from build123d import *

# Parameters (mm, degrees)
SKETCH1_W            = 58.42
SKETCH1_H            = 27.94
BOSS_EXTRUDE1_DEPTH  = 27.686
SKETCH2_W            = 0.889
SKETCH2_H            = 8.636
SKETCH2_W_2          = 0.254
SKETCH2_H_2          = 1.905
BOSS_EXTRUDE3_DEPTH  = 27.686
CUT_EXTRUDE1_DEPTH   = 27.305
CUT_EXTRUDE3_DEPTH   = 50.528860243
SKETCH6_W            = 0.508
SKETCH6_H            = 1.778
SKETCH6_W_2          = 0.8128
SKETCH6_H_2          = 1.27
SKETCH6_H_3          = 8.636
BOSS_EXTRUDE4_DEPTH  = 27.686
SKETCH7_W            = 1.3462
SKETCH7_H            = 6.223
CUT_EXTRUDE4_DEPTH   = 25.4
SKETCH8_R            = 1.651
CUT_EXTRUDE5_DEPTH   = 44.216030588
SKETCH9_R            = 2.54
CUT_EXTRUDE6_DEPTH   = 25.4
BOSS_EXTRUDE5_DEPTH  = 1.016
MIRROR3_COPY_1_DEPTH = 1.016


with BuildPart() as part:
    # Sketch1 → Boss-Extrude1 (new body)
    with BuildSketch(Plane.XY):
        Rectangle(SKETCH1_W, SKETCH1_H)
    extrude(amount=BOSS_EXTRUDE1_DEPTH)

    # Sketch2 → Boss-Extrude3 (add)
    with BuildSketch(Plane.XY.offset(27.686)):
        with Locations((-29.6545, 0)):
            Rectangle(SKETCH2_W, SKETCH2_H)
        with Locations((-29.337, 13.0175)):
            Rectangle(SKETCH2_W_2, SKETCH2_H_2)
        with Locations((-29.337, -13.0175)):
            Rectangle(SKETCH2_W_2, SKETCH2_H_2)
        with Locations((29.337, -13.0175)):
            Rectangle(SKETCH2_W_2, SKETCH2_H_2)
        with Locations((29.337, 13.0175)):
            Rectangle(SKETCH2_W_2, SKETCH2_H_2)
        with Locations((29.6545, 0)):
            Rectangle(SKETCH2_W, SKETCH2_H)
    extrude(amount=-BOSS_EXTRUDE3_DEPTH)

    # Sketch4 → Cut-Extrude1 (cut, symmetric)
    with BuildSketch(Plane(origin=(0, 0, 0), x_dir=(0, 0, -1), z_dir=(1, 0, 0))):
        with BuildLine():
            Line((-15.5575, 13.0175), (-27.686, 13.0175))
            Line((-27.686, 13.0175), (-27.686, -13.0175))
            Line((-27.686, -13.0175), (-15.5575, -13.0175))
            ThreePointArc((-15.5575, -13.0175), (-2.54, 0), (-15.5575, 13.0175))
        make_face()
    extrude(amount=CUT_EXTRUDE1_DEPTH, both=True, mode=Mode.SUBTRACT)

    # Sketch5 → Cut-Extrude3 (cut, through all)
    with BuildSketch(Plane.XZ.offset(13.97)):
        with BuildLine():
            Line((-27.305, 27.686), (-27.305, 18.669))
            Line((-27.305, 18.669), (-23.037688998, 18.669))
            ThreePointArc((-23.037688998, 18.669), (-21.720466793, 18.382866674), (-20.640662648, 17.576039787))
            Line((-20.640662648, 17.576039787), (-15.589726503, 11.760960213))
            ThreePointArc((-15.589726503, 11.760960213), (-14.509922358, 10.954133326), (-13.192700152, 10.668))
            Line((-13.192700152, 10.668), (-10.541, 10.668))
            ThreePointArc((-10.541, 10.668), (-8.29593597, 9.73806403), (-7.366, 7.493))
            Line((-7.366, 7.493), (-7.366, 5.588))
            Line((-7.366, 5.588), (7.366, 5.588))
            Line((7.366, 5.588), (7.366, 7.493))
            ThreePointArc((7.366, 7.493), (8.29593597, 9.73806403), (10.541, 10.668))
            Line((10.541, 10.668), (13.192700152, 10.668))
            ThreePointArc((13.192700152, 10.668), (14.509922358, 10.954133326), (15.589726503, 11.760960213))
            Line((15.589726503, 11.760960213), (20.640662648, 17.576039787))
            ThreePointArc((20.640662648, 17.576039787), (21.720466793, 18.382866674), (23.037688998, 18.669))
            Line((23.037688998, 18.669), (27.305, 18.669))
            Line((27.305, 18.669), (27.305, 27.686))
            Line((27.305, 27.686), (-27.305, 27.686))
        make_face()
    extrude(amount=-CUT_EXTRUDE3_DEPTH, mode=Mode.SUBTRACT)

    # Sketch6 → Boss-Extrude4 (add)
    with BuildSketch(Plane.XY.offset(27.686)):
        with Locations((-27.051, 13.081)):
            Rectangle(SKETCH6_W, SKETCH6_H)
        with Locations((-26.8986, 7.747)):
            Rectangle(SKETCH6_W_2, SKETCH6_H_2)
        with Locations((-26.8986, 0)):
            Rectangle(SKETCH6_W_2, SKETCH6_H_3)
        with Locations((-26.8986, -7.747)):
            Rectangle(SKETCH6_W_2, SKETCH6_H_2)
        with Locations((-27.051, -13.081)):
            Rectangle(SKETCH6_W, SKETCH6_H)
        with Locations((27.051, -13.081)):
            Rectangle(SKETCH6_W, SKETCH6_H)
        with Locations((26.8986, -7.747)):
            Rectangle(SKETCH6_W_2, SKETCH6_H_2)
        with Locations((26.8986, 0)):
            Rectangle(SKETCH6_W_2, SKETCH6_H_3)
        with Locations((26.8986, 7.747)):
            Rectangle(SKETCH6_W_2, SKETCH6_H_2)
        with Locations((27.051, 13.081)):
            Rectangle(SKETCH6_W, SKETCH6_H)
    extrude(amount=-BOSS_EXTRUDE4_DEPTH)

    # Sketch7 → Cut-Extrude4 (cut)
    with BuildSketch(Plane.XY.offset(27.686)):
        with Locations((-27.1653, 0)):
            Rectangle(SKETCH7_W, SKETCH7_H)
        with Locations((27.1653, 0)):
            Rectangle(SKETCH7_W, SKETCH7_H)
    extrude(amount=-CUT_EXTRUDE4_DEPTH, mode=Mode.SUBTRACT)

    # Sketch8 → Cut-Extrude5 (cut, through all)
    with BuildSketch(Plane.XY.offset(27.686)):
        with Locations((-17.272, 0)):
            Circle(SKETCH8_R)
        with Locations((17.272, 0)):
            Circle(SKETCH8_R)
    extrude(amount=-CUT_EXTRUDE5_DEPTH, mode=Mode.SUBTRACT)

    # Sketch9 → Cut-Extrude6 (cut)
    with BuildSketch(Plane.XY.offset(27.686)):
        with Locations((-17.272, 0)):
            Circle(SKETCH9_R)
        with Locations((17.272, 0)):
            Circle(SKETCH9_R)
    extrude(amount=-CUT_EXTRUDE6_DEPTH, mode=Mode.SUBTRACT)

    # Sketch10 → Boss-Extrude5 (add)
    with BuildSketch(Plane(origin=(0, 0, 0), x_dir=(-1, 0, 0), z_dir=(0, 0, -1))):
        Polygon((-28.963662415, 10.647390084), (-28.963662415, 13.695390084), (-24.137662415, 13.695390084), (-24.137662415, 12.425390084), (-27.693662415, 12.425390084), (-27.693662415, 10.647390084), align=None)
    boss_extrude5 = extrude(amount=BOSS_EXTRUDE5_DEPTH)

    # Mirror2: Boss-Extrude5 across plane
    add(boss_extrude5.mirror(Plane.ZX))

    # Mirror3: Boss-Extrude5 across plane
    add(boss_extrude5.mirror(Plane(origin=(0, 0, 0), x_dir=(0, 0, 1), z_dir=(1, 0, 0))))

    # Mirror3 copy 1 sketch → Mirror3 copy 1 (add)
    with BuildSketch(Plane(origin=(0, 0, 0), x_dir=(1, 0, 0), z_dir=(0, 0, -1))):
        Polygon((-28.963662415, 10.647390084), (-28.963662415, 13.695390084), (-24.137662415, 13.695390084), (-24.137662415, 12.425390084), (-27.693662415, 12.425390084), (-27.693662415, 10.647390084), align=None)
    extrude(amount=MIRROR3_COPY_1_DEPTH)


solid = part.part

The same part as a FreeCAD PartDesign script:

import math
import FreeCAD as App
import Part
import Sketcher
from FreeCAD import Vector
Q = App.Units.Quantity

doc = App.newDocument("Part")
params = doc.addObject("Spreadsheet::Sheet", "Params")
for row, (alias, value) in enumerate([
    ("sketch1_width", "2.3 in"),
    ("sketch1_height", "1.1 in"),
    ("pad1_length", "1.09 in"),
    ("sketch2_width", "0.01 in"),
    ("sketch2_height", "0.34 in"),
    ("sketch2_width2", "0.035 in"),
    ("sketch2_height2", "0.075 in"),
    ("pad2_length", "1.09 in"),
    ("pocket1_length", "2.15 in"),
    ("sketch4_radius", "0.125 in"),
    ("sketch4_width", "0.58 in"),
    ("sketch4_width2", "2.15 in"),
    ("sketch4_height", "0.355 in"),
    ("sketch5_width", "0.02 in"),
    ("sketch5_height", "0.07 in"),
    ("sketch5_height2", "0.05 in"),
    ("sketch5_height3", "0.34 in"),
    ("sketch5_width2", "0.032 in"),
    ("pad3_length", "1.09 in"),
    ("sketch6_width", "0.053 in"),
    ("sketch6_height", "0.245 in"),
    ("pocket3_length", "1 in"),
    ("sketch7_diameter", "0.13 in"),
    ("sketch8_diameter", "0.2 in"),
    ("pocket5_length", "1 in"),
    ("sketch9_width", "0.05 in"),
    ("sketch9_width2", "0.14 in"),
    ("sketch9_height", "0.12 in"),
    ("pad4_length", "0.04 in"),
    ("sketch10_width", "0.05 in"),
    ("sketch10_width2", "0.14 in"),
    ("sketch10_height", "0.12 in"),
    ("pad5_length", "0.04 in"),
], start=1):
    params.set(f"A{row}", alias)
    params.set(f"B{row}", "=" + value)
    params.setAlias(f"B{row}", alias)

body = doc.addObject("PartDesign::Body", "Body")

# Sketch on XY plane
sketch1 = body.newObject("Sketcher::SketchObject", "Sketch")
sketch1.AttachmentSupport = (doc.getObject("XY_Plane"), [""])
sketch1.MapMode = "FlatFace"
sketch1.addGeometry(Part.LineSegment(Vector(-29.21, 13.97, 0), Vector(-29.21, -13.97, 0)), False)
sketch1.addGeometry(Part.LineSegment(Vector(-29.21, -13.97, 0), Vector(29.21, -13.97, 0)), False)
sketch1.addGeometry(Part.LineSegment(Vector(29.21, -13.97, 0), Vector(29.21, 13.97, 0)), False)
sketch1.addGeometry(Part.LineSegment(Vector(29.21, 13.97, 0), Vector(-29.21, 13.97, 0)), False)
sketch1.addConstraint(Sketcher.Constraint("Coincident", 0, 2, 1, 1))
sketch1.addConstraint(Sketcher.Constraint("Coincident", 1, 2, 2, 1))
sketch1.addConstraint(Sketcher.Constraint("Coincident", 2, 2, 3, 1))
sketch1.addConstraint(Sketcher.Constraint("Coincident", 3, 2, 0, 1))
sketch1.addConstraint(Sketcher.Constraint("Vertical", 0))
sketch1.addConstraint(Sketcher.Constraint("Horizontal", 1))
sketch1.addConstraint(Sketcher.Constraint("Vertical", 2))
sketch1.addConstraint(Sketcher.Constraint("Horizontal", 3))
sketch1.addConstraint(Sketcher.Constraint("Symmetric", 0, 2, 2, 2, -1, 1))
sketch1.addConstraint(Sketcher.Constraint("DistanceX", 1, 1, 1, 2, Q("2.3 in")))
sketch1.addConstraint(Sketcher.Constraint("DistanceY", 0, 2, 0, 1, Q("1.1 in")))
sketch1.setExpression("Constraints[9]", "Params.sketch1_width")
sketch1.setExpression("Constraints[10]", "Params.sketch1_height")
pad1 = body.newObject("PartDesign::Pad", "Pad")
pad1.Profile = sketch1
pad1.setExpression("Length", "Params.pad1_length")

# Sketch on XY plane
sketch2 = body.newObject("Sketcher::SketchObject", "Sketch001")
sketch2.AttachmentSupport = (doc.getObject("XY_Plane"), [""])
sketch2.MapMode = "FlatFace"
sketch2.AttachmentOffset = App.Placement(Vector(0, 0, 1.09 * 25.4), App.Rotation())
sketch2.addGeometry(Part.LineSegment(Vector(-30.099, 4.318, 0), Vector(-30.099, -4.318, 0)), False)
sketch2.addGeometry(Part.LineSegment(Vector(-30.099, -4.318, 0), Vector(-29.21, -4.318, 0)), False)
sketch2.addGeometry(Part.LineSegment(Vector(-29.21, -4.318, 0), Vector(-29.21, 4.318, 0)), False)
sketch2.addGeometry(Part.LineSegment(Vector(-29.21, 4.318, 0), Vector(-30.099, 4.318, 0)), False)
sketch2.addGeometry(Part.LineSegment(Vector(-29.464, 13.97, 0), Vector(-29.464, 12.065, 0)), False)
sketch2.addGeometry(Part.LineSegment(Vector(-29.464, 12.065, 0), Vector(-29.21, 12.065, 0)), False)
sketch2.addGeometry(Part.LineSegment(Vector(-29.21, 12.065, 0), Vector(-29.21, 13.97, 0)), False)
sketch2.addGeometry(Part.LineSegment(Vector(-29.21, 13.97, 0), Vector(-29.464, 13.97, 0)), False)
sketch2.addGeometry(Part.LineSegment(Vector(-29.464, -12.065, 0), Vector(-29.464, -13.97, 0)), False)
sketch2.addGeometry(Part.LineSegment(Vector(-29.464, -13.97, 0), Vector(-29.21, -13.97, 0)), False)
sketch2.addGeometry(Part.LineSegment(Vector(-29.21, -13.97, 0), Vector(-29.21, -12.065, 0)), False)
sketch2.addGeometry(Part.LineSegment(Vector(-29.21, -12.065, 0), Vector(-29.464, -12.065, 0)), False)
sketch2.addGeometry(Part.LineSegment(Vector(29.21, -12.065, 0), Vector(29.21, -13.97, 0)), False)
sketch2.addGeometry(Part.LineSegment(Vector(29.21, -13.97, 0), Vector(29.464, -13.97, 0)), False)
sketch2.addGeometry(Part.LineSegment(Vector(29.464, -13.97, 0), Vector(29.464, -12.065, 0)), False)
sketch2.addGeometry(Part.LineSegment(Vector(29.464, -12.065, 0), Vector(29.21, -12.065, 0)), False)
sketch2.addGeometry(Part.LineSegment(Vector(29.21, 13.97, 0), Vector(29.21, 12.065, 0)), False)
sketch2.addGeometry(Part.LineSegment(Vector(29.21, 12.065, 0), Vector(29.464, 12.065, 0)), False)
sketch2.addGeometry(Part.LineSegment(Vector(29.464, 12.065, 0), Vector(29.464, 13.97, 0)), False)
sketch2.addGeometry(Part.LineSegment(Vector(29.464, 13.97, 0), Vector(29.21, 13.97, 0)), False)
sketch2.addGeometry(Part.LineSegment(Vector(29.21, 4.318, 0), Vector(29.21, -4.318, 0)), False)
sketch2.addGeometry(Part.LineSegment(Vector(29.21, -4.318, 0), Vector(30.099, -4.318, 0)), False)
sketch2.addGeometry(Part.LineSegment(Vector(30.099, -4.318, 0), Vector(30.099, 4.318, 0)), False)
sketch2.addGeometry(Part.LineSegment(Vector(30.099, 4.318, 0), Vector(29.21, 4.318, 0)), False)
sketch2.addConstraint(Sketcher.Constraint("Coincident", 0, 2, 1, 1))
sketch2.addConstraint(Sketcher.Constraint("Coincident", 1, 2, 2, 1))
sketch2.addConstraint(Sketcher.Constraint("Coincident", 2, 2, 3, 1))
sketch2.addConstraint(Sketcher.Constraint("Coincident", 3, 2, 0, 1))
sketch2.addConstraint(Sketcher.Constraint("Coincident", 4, 2, 5, 1))
sketch2.addConstraint(Sketcher.Constraint("Coincident", 5, 2, 6, 1))
sketch2.addConstraint(Sketcher.Constraint("Coincident", 6, 2, 7, 1))
sketch2.addConstraint(Sketcher.Constraint("Coincident", 7, 2, 4, 1))
sketch2.addConstraint(Sketcher.Constraint("Coincident", 8, 2, 9, 1))
sketch2.addConstraint(Sketcher.Constraint("Coincident", 9, 2, 10, 1))
sketch2.addConstraint(Sketcher.Constraint("Coincident", 10, 2, 11, 1))
sketch2.addConstraint(Sketcher.Constraint("Coincident", 11, 2, 8, 1))
sketch2.addConstraint(Sketcher.Constraint("Coincident", 12, 2, 13, 1))
sketch2.addConstraint(Sketcher.Constraint("Coincident", 13, 2, 14, 1))
sketch2.addConstraint(Sketcher.Constraint("Coincident", 14, 2, 15, 1))
sketch2.addConstraint(Sketcher.Constraint("Coincident", 15, 2, 12, 1))
sketch2.addConstraint(Sketcher.Constraint("Coincident", 16, 2, 17, 1))
sketch2.addConstraint(Sketcher.Constraint("Coincident", 17, 2, 18, 1))
sketch2.addConstraint(Sketcher.Constraint("Coincident", 18, 2, 19, 1))
sketch2.addConstraint(Sketcher.Constraint("Coincident", 19, 2, 16, 1))
sketch2.addConstraint(Sketcher.Constraint("Coincident", 20, 2, 21, 1))
sketch2.addConstraint(Sketcher.Constraint("Coincident", 21, 2, 22, 1))
sketch2.addConstraint(Sketcher.Constraint("Coincident", 22, 2, 23, 1))
sketch2.addConstraint(Sketcher.Constraint("Coincident", 23, 2, 20, 1))
sketch2.addConstraint(Sketcher.Constraint("Vertical", 0))
sketch2.addConstraint(Sketcher.Constraint("Horizontal", 1))
sketch2.addConstraint(Sketcher.Constraint("Vertical", 2))
sketch2.addConstraint(Sketcher.Constraint("Horizontal", 3))
sketch2.addConstraint(Sketcher.Constraint("Vertical", 4))
sketch2.addConstraint(Sketcher.Constraint("Horizontal", 5))
sketch2.addConstraint(Sketcher.Constraint("Vertical", 6))
sketch2.addConstraint(Sketcher.Constraint("Horizontal", 7))
sketch2.addConstraint(Sketcher.Constraint("Vertical", 8))
sketch2.addConstraint(Sketcher.Constraint("Horizontal", 9))
sketch2.addConstraint(Sketcher.Constraint("Vertical", 10))
sketch2.addConstraint(Sketcher.Constraint("Horizontal", 11))
sketch2.addConstraint(Sketcher.Constraint("Vertical", 12))
sketch2.addConstraint(Sketcher.Constraint("Horizontal", 13))
sketch2.addConstraint(Sketcher.Constraint("Vertical", 14))
sketch2.addConstraint(Sketcher.Constraint("Horizontal", 15))
sketch2.addConstraint(Sketcher.Constraint("Vertical", 16))
sketch2.addConstraint(Sketcher.Constraint("Horizontal", 17))
sketch2.addConstraint(Sketcher.Constraint("Vertical", 18))
sketch2.addConstraint(Sketcher.Constraint("Horizontal", 19))
sketch2.addConstraint(Sketcher.Constraint("Vertical", 20))
sketch2.addConstraint(Sketcher.Constraint("Horizontal", 21))
sketch2.addConstraint(Sketcher.Constraint("Vertical", 22))
sketch2.addConstraint(Sketcher.Constraint("Horizontal", 23))
sketch2.addConstraint(Sketcher.Constraint("Symmetric", 6, 2, 12, 2, -1, 1))
sketch2.addConstraint(Sketcher.Constraint("Symmetric", 4, 2, 14, 2, -1, 1))
sketch2.addConstraint(Sketcher.Constraint("Symmetric", 10, 2, 16, 2, -1, 1))
sketch2.addConstraint(Sketcher.Constraint("Symmetric", 8, 2, 18, 2, -1, 1))
sketch2.addConstraint(Sketcher.Constraint("Symmetric", 2, 2, 20, 2, -1, 1))
sketch2.addConstraint(Sketcher.Constraint("Symmetric", 0, 2, 22, 2, -1, 1))
sketch2.addConstraint(Sketcher.Constraint("Symmetric", 9, 2, 12, 2, -2))
sketch2.addConstraint(Sketcher.Constraint("Symmetric", 11, 2, 14, 2, -2))
sketch2.addConstraint(Sketcher.Constraint("Horizontal", 1, 2, 20, 2))
sketch2.addConstraint(Sketcher.Constraint("Vertical", 2, 2, 5, 2))
sketch2.addConstraint(Sketcher.Constraint("DistanceX", 5, 1, 5, 2, Q("0.01 in")))
sketch2.addConstraint(Sketcher.Constraint("DistanceY", 0, 2, 0, 1, Q("0.34 in")))
sketch2.addConstraint(Sketcher.Constraint("DistanceX", 9, 2, 12, 2, Q("2.3 in")))
sketch2.addConstraint(Sketcher.Constraint("DistanceY", 13, 2, 18, 2, Q("1.1 in")))
sketch2.addConstraint(Sketcher.Constraint("DistanceX", 1, 1, 1, 2, Q("0.035 in")))
sketch2.addConstraint(Sketcher.Constraint("DistanceY", 4, 2, 4, 1, Q("0.075 in")))
sketch2.setExpression("Constraints[58]", "Params.sketch2_width")
sketch2.setExpression("Constraints[59]", "Params.sketch2_height")
sketch2.setExpression("Constraints[62]", "Params.sketch2_width2")
sketch2.setExpression("Constraints[63]", "Params.sketch2_height2")
pad2 = body.newObject("PartDesign::Pad", "Pad001")
pad2.Profile = sketch2
pad2.setExpression("Length", "Params.pad2_length")
pad2.Reversed = True

# Sketch on YZ plane
sketch3 = body.newObject("Sketcher::SketchObject", "Sketch002")
sketch3.AttachmentSupport = (doc.getObject("YZ_Plane"), [""])
sketch3.MapMode = "FlatFace"
sketch3.addGeometry(Part.LineSegment(Vector(13.0175, 15.5575, 0), Vector(13.0175, 27.686, 0)), False)
sketch3.addGeometry(Part.LineSegment(Vector(13.0175, 27.686, 0), Vector(-13.0175, 27.686, 0)), False)
sketch3.addGeometry(Part.LineSegment(Vector(-13.0175, 27.686, 0), Vector(-13.0175, 15.5575, 0)), False)
sketch3.addGeometry(Part.ArcOfCircle(Part.Circle(Vector(0, 15.5575, 0), Vector(0, 0, 1), 13.0175), math.radians(180), math.radians(360)), False)
sketch3.addConstraint(Sketcher.Constraint("Coincident", 0, 2, 1, 1))
sketch3.addConstraint(Sketcher.Constraint("Coincident", 1, 2, 2, 1))
sketch3.addConstraint(Sketcher.Constraint("Tangent", 2, 2, 3, 1))
sketch3.addConstraint(Sketcher.Constraint("Tangent", 3, 2, 0, 1))
sketch3.addConstraint(Sketcher.Constraint("Vertical", 0))
sketch3.addConstraint(Sketcher.Constraint("Horizontal", 1))
sketch3.addConstraint(Sketcher.Constraint("Vertical", 2))
sketch3.addConstraint(Sketcher.Constraint("PointOnObject", 3, 3, -2))
sketch3.addConstraint(Sketcher.Constraint("Radius", 3, Q("0.5125 in")))
sketch3.addConstraint(Sketcher.Constraint("DistanceY", -1, 1, 0, 2, Q("1.09 in")))
sketch3.addConstraint(Sketcher.Constraint("DistanceY", 0, 1, 0, 2, Q("0.4775 in")))
pocket1 = body.newObject("PartDesign::Pocket", "Pocket")
pocket1.Profile = sketch3
pocket1.setExpression("Length", "Params.pocket1_length")
pocket1.Midplane = True

# Sketch on XZ plane
sketch4 = body.newObject("Sketcher::SketchObject", "Sketch003")
sketch4.AttachmentSupport = (doc.getObject("XZ_Plane"), [""])
sketch4.MapMode = "FlatFace"
sketch4.AttachmentOffset = App.Placement(Vector(0, 0, 0.55 * 25.4), App.Rotation())
sketch4.addGeometry(Part.LineSegment(Vector(-27.305, 27.686, 0), Vector(-27.305, 18.669, 0)), False)
sketch4.addGeometry(Part.LineSegment(Vector(-27.305, 18.669, 0), Vector(-23.037689, 18.669, 0)), False)
sketch4.addGeometry(Part.ArcOfCircle(Part.Circle(Vector(-23.037689, 15.494, 0), Vector(0, 0, 1), 3.175), math.radians(40.977345), math.radians(90)), False)
sketch4.addGeometry(Part.LineSegment(Vector(-20.640663, 17.57604, 0), Vector(-15.589727, 11.76096, 0)), False)
sketch4.addGeometry(Part.ArcOfCircle(Part.Circle(Vector(-13.1927, 13.843, 0), Vector(0, 0, 1), 3.175), math.radians(-139.022655), math.radians(-90)), False)
sketch4.addGeometry(Part.LineSegment(Vector(-13.1927, 10.668, 0), Vector(-10.541, 10.668, 0)), False)
sketch4.addGeometry(Part.ArcOfCircle(Part.Circle(Vector(-10.541, 7.493, 0), Vector(0, 0, 1), 3.175), math.radians(0), math.radians(90)), False)
sketch4.addGeometry(Part.LineSegment(Vector(-7.366, 7.493, 0), Vector(-7.366, 5.588, 0)), False)
sketch4.addGeometry(Part.LineSegment(Vector(-7.366, 5.588, 0), Vector(7.366, 5.588, 0)), False)
sketch4.addGeometry(Part.LineSegment(Vector(7.366, 5.588, 0), Vector(7.366, 7.493, 0)), False)
sketch4.addGeometry(Part.ArcOfCircle(Part.Circle(Vector(10.541, 7.493, 0), Vector(0, 0, 1), 3.175), math.radians(90), math.radians(180)), False)
sketch4.addGeometry(Part.LineSegment(Vector(10.541, 10.668, 0), Vector(13.1927, 10.668, 0)), False)
sketch4.addGeometry(Part.ArcOfCircle(Part.Circle(Vector(13.1927, 13.843, 0), Vector(0, 0, 1), 3.175), math.radians(-90), math.radians(-40.977345)), False)
sketch4.addGeometry(Part.LineSegment(Vector(15.589727, 11.76096, 0), Vector(20.640663, 17.57604, 0)), False)
sketch4.addGeometry(Part.ArcOfCircle(Part.Circle(Vector(23.037689, 15.494, 0), Vector(0, 0, 1), 3.175), math.radians(90), math.radians(139.022655)), False)
sketch4.addGeometry(Part.LineSegment(Vector(23.037689, 18.669, 0), Vector(27.305, 18.669, 0)), False)
sketch4.addGeometry(Part.LineSegment(Vector(27.305, 18.669, 0), Vector(27.305, 27.686, 0)), False)
sketch4.addGeometry(Part.LineSegment(Vector(27.305, 27.686, 0), Vector(-27.305, 27.686, 0)), False)
sketch4.addConstraint(Sketcher.Constraint("Coincident", 0, 2, 1, 1))
sketch4.addConstraint(Sketcher.Constraint("Tangent", 1, 2, 2, 2))
sketch4.addConstraint(Sketcher.Constraint("Tangent", 2, 1, 3, 1))
sketch4.addConstraint(Sketcher.Constraint("Tangent", 3, 2, 4, 1))
sketch4.addConstraint(Sketcher.Constraint("Tangent", 4, 2, 5, 1))
sketch4.addConstraint(Sketcher.Constraint("Tangent", 5, 2, 6, 2))
sketch4.addConstraint(Sketcher.Constraint("Tangent", 6, 1, 7, 1))
sketch4.addConstraint(Sketcher.Constraint("Coincident", 7, 2, 8, 1))
sketch4.addConstraint(Sketcher.Constraint("Coincident", 8, 2, 9, 1))
sketch4.addConstraint(Sketcher.Constraint("Tangent", 9, 2, 10, 2))
sketch4.addConstraint(Sketcher.Constraint("Tangent", 10, 1, 11, 1))
sketch4.addConstraint(Sketcher.Constraint("Tangent", 11, 2, 12, 1))
sketch4.addConstraint(Sketcher.Constraint("Tangent", 12, 2, 13, 1))
sketch4.addConstraint(Sketcher.Constraint("Tangent", 13, 2, 14, 2))
sketch4.addConstraint(Sketcher.Constraint("Tangent", 14, 1, 15, 1))
sketch4.addConstraint(Sketcher.Constraint("Coincident", 15, 2, 16, 1))
sketch4.addConstraint(Sketcher.Constraint("Coincident", 16, 2, 17, 1))
sketch4.addConstraint(Sketcher.Constraint("Coincident", 17, 2, 0, 1))
sketch4.addConstraint(Sketcher.Constraint("Vertical", 0))
sketch4.addConstraint(Sketcher.Constraint("Horizontal", 1))
sketch4.addConstraint(Sketcher.Constraint("Horizontal", 5))
sketch4.addConstraint(Sketcher.Constraint("Vertical", 7))
sketch4.addConstraint(Sketcher.Constraint("Horizontal", 8))
sketch4.addConstraint(Sketcher.Constraint("Vertical", 9))
sketch4.addConstraint(Sketcher.Constraint("Horizontal", 11))
sketch4.addConstraint(Sketcher.Constraint("Horizontal", 15))
sketch4.addConstraint(Sketcher.Constraint("Vertical", 16))
sketch4.addConstraint(Sketcher.Constraint("Horizontal", 17))
sketch4.addConstraint(Sketcher.Constraint("Equal", 2, 4))
sketch4.addConstraint(Sketcher.Constraint("Equal", 4, 6))
sketch4.addConstraint(Sketcher.Constraint("Equal", 6, 10))
sketch4.addConstraint(Sketcher.Constraint("Equal", 10, 12))
sketch4.addConstraint(Sketcher.Constraint("Equal", 12, 14))
sketch4.addConstraint(Sketcher.Constraint("Symmetric", 6, 3, 10, 3, -2))
sketch4.addConstraint(Sketcher.Constraint("Symmetric", 2, 3, 14, 3, -2))
sketch4.addConstraint(Sketcher.Constraint("Horizontal", 3, 2, 12, 2))
sketch4.addConstraint(Sketcher.Constraint("Equal", 1, 15))
sketch4.addConstraint(Sketcher.Constraint("Radius", 2, Q("0.125 in")))
sketch4.addConstraint(Sketcher.Constraint("DistanceX", 8, 1, 8, 2, Q("0.58 in")))
sketch4.addConstraint(Sketcher.Constraint("DistanceX", 17, 2, 17, 1, Q("2.15 in")))
sketch4.addConstraint(Sketcher.Constraint("DistanceY", 7, 2, 5, 2, Q("0.2 in")))
sketch4.addConstraint(Sketcher.Constraint("DistanceY", 0, 2, 0, 1, Q("0.355 in")))
sketch4.addConstraint(Sketcher.Constraint("DistanceY", -1, 1, 2, 3, Q("0.61 in")))
sketch4.addConstraint(Sketcher.Constraint("DistanceY", -1, 1, 4, 2, Q("0.42 in")))
sketch4.addConstraint(Sketcher.Constraint("DistanceX", 5, 1, 5, 2, 2.6517))
sketch4.addConstraint(Sketcher.Constraint("DistanceX", 1, 1, 1, 2, 4.267311))
sketch4.setExpression("Constraints[37]", "Params.sketch4_radius")
sketch4.setExpression("Constraints[38]", "Params.sketch4_width")
sketch4.setExpression("Constraints[39]", "Params.sketch4_width2")
sketch4.setExpression("Constraints[41]", "Params.sketch4_height")
pocket2 = body.newObject("PartDesign::Pocket", "Pocket001")
pocket2.Profile = sketch4
pocket2.Type = "ThroughAll"

# Sketch on XY plane
sketch5 = body.newObject("Sketcher::SketchObject", "Sketch004")
sketch5.AttachmentSupport = (doc.getObject("XY_Plane"), [""])
sketch5.MapMode = "FlatFace"
sketch5.AttachmentOffset = App.Placement(Vector(0, 0, 1.09 * 25.4), App.Rotation())
sketch5.addGeometry(Part.LineSegment(Vector(-27.305, 13.97, 0), Vector(-27.305, 12.192, 0)), False)
sketch5.addGeometry(Part.LineSegment(Vector(-27.305, 12.192, 0), Vector(-26.797, 12.192, 0)), False)
sketch5.addGeometry(Part.LineSegment(Vector(-26.797, 12.192, 0), Vector(-26.797, 13.97, 0)), False)
sketch5.addGeometry(Part.LineSegment(Vector(-26.797, 13.97, 0), Vector(-27.305, 13.97, 0)), False)
sketch5.addGeometry(Part.LineSegment(Vector(-27.305, 8.382, 0), Vector(-27.305, 7.112, 0)), False)
sketch5.addGeometry(Part.LineSegment(Vector(-27.305, 7.112, 0), Vector(-26.4922, 7.112, 0)), False)
sketch5.addGeometry(Part.LineSegment(Vector(-26.4922, 7.112, 0), Vector(-26.4922, 8.382, 0)), False)
sketch5.addGeometry(Part.LineSegment(Vector(-26.4922, 8.382, 0), Vector(-27.305, 8.382, 0)), False)
sketch5.addGeometry(Part.LineSegment(Vector(-27.305, 4.318, 0), Vector(-27.305, -4.318, 0)), False)
sketch5.addGeometry(Part.LineSegment(Vector(-27.305, -4.318, 0), Vector(-26.4922, -4.318, 0)), False)
sketch5.addGeometry(Part.LineSegment(Vector(-26.4922, -4.318, 0), Vector(-26.4922, 4.318, 0)), False)
sketch5.addGeometry(Part.LineSegment(Vector(-26.4922, 4.318, 0), Vector(-27.305, 4.318, 0)), False)
sketch5.addGeometry(Part.LineSegment(Vector(-27.305, -7.112, 0), Vector(-27.305, -8.382, 0)), False)
sketch5.addGeometry(Part.LineSegment(Vector(-27.305, -8.382, 0), Vector(-26.4922, -8.382, 0)), False)
sketch5.addGeometry(Part.LineSegment(Vector(-26.4922, -8.382, 0), Vector(-26.4922, -7.112, 0)), False)
sketch5.addGeometry(Part.LineSegment(Vector(-26.4922, -7.112, 0), Vector(-27.305, -7.112, 0)), False)
sketch5.addGeometry(Part.LineSegment(Vector(-27.305, -12.192, 0), Vector(-27.305, -13.97, 0)), False)
sketch5.addGeometry(Part.LineSegment(Vector(-27.305, -13.97, 0), Vector(-26.797, -13.97, 0)), False)
sketch5.addGeometry(Part.LineSegment(Vector(-26.797, -13.97, 0), Vector(-26.797, -12.192, 0)), False)
sketch5.addGeometry(Part.LineSegment(Vector(-26.797, -12.192, 0), Vector(-27.305, -12.192, 0)), False)
sketch5.addGeometry(Part.LineSegment(Vector(26.797, -12.192, 0), Vector(26.797, -13.97, 0)), False)
sketch5.addGeometry(Part.LineSegment(Vector(26.797, -13.97, 0), Vector(27.305, -13.97, 0)), False)
sketch5.addGeometry(Part.LineSegment(Vector(27.305, -13.97, 0), Vector(27.305, -12.192, 0)), False)
sketch5.addGeometry(Part.LineSegment(Vector(27.305, -12.192, 0), Vector(26.797, -12.192, 0)), False)
sketch5.addGeometry(Part.LineSegment(Vector(26.4922, -7.112, 0), Vector(26.4922, -8.382, 0)), False)
sketch5.addGeometry(Part.LineSegment(Vector(26.4922, -8.382, 0), Vector(27.305, -8.382, 0)), False)
sketch5.addGeometry(Part.LineSegment(Vector(27.305, -8.382, 0), Vector(27.305, -7.112, 0)), False)
sketch5.addGeometry(Part.LineSegment(Vector(27.305, -7.112, 0), Vector(26.4922, -7.112, 0)), False)
sketch5.addGeometry(Part.LineSegment(Vector(26.4922, 4.318, 0), Vector(26.4922, -4.318, 0)), False)
sketch5.addGeometry(Part.LineSegment(Vector(26.4922, -4.318, 0), Vector(27.305, -4.318, 0)), False)
sketch5.addGeometry(Part.LineSegment(Vector(27.305, -4.318, 0), Vector(27.305, 4.318, 0)), False)
sketch5.addGeometry(Part.LineSegment(Vector(27.305, 4.318, 0), Vector(26.4922, 4.318, 0)), False)
sketch5.addGeometry(Part.LineSegment(Vector(26.4922, 8.382, 0), Vector(26.4922, 7.112, 0)), False)
sketch5.addGeometry(Part.LineSegment(Vector(26.4922, 7.112, 0), Vector(27.305, 7.112, 0)), False)
sketch5.addGeometry(Part.LineSegment(Vector(27.305, 7.112, 0), Vector(27.305, 8.382, 0)), False)
sketch5.addGeometry(Part.LineSegment(Vector(27.305, 8.382, 0), Vector(26.4922, 8.382, 0)), False)
sketch5.addGeometry(Part.LineSegment(Vector(26.797, 13.97, 0), Vector(26.797, 12.192, 0)), False)
sketch5.addGeometry(Part.LineSegment(Vector(26.797, 12.192, 0), Vector(27.305, 12.192, 0)), False)
sketch5.addGeometry(Part.LineSegment(Vector(27.305, 12.192, 0), Vector(27.305, 13.97, 0)), False)
sketch5.addGeometry(Part.LineSegment(Vector(27.305, 13.97, 0), Vector(26.797, 13.97, 0)), False)
sketch5.addConstraint(Sketcher.Constraint("Coincident", 0, 2, 1, 1))
sketch5.addConstraint(Sketcher.Constraint("Coincident", 1, 2, 2, 1))
sketch5.addConstraint(Sketcher.Constraint("Coincident", 2, 2, 3, 1))
sketch5.addConstraint(Sketcher.Constraint("Coincident", 3, 2, 0, 1))
sketch5.addConstraint(Sketcher.Constraint("Coincident", 4, 2, 5, 1))
sketch5.addConstraint(Sketcher.Constraint("Coincident", 5, 2, 6, 1))
sketch5.addConstraint(Sketcher.Constraint("Coincident", 6, 2, 7, 1))
sketch5.addConstraint(Sketcher.Constraint("Coincident", 7, 2, 4, 1))
sketch5.addConstraint(Sketcher.Constraint("Coincident", 8, 2, 9, 1))
sketch5.addConstraint(Sketcher.Constraint("Coincident", 9, 2, 10, 1))
sketch5.addConstraint(Sketcher.Constraint("Coincident", 10, 2, 11, 1))
sketch5.addConstraint(Sketcher.Constraint("Coincident", 11, 2, 8, 1))
sketch5.addConstraint(Sketcher.Constraint("Coincident", 12, 2, 13, 1))
sketch5.addConstraint(Sketcher.Constraint("Coincident", 13, 2, 14, 1))
sketch5.addConstraint(Sketcher.Constraint("Coincident", 14, 2, 15, 1))
sketch5.addConstraint(Sketcher.Constraint("Coincident", 15, 2, 12, 1))
sketch5.addConstraint(Sketcher.Constraint("Coincident", 16, 2, 17, 1))
sketch5.addConstraint(Sketcher.Constraint("Coincident", 17, 2, 18, 1))
sketch5.addConstraint(Sketcher.Constraint("Coincident", 18, 2, 19, 1))
sketch5.addConstraint(Sketcher.Constraint("Coincident", 19, 2, 16, 1))
sketch5.addConstraint(Sketcher.Constraint("Coincident", 20, 2, 21, 1))
sketch5.addConstraint(Sketcher.Constraint("Coincident", 21, 2, 22, 1))
sketch5.addConstraint(Sketcher.Constraint("Coincident", 22, 2, 23, 1))
sketch5.addConstraint(Sketcher.Constraint("Coincident", 23, 2, 20, 1))
sketch5.addConstraint(Sketcher.Constraint("Coincident", 24, 2, 25, 1))
sketch5.addConstraint(Sketcher.Constraint("Coincident", 25, 2, 26, 1))
sketch5.addConstraint(Sketcher.Constraint("Coincident", 26, 2, 27, 1))
sketch5.addConstraint(Sketcher.Constraint("Coincident", 27, 2, 24, 1))
sketch5.addConstraint(Sketcher.Constraint("Coincident", 28, 2, 29, 1))
sketch5.addConstraint(Sketcher.Constraint("Coincident", 29, 2, 30, 1))
sketch5.addConstraint(Sketcher.Constraint("Coincident", 30, 2, 31, 1))
sketch5.addConstraint(Sketcher.Constraint("Coincident", 31, 2, 28, 1))
sketch5.addConstraint(Sketcher.Constraint("Coincident", 32, 2, 33, 1))
sketch5.addConstraint(Sketcher.Constraint("Coincident", 33, 2, 34, 1))
sketch5.addConstraint(Sketcher.Constraint("Coincident", 34, 2, 35, 1))
sketch5.addConstraint(Sketcher.Constraint("Coincident", 35, 2, 32, 1))
sketch5.addConstraint(Sketcher.Constraint("Coincident", 36, 2, 37, 1))
sketch5.addConstraint(Sketcher.Constraint("Coincident", 37, 2, 38, 1))
sketch5.addConstraint(Sketcher.Constraint("Coincident", 38, 2, 39, 1))
sketch5.addConstraint(Sketcher.Constraint("Coincident", 39, 2, 36, 1))
sketch5.addConstraint(Sketcher.Constraint("Vertical", 0))
sketch5.addConstraint(Sketcher.Constraint("Horizontal", 1))
sketch5.addConstraint(Sketcher.Constraint("Vertical", 2))
sketch5.addConstraint(Sketcher.Constraint("Horizontal", 3))
sketch5.addConstraint(Sketcher.Constraint("Vertical", 4))
sketch5.addConstraint(Sketcher.Constraint("Horizontal", 5))
sketch5.addConstraint(Sketcher.Constraint("Vertical", 6))
sketch5.addConstraint(Sketcher.Constraint("Horizontal", 7))
sketch5.addConstraint(Sketcher.Constraint("Vertical", 8))
sketch5.addConstraint(Sketcher.Constraint("Horizontal", 9))
sketch5.addConstraint(Sketcher.Constraint("Vertical", 10))
sketch5.addConstraint(Sketcher.Constraint("Horizontal", 11))
sketch5.addConstraint(Sketcher.Constraint("Vertical", 12))
sketch5.addConstraint(Sketcher.Constraint("Horizontal", 13))
sketch5.addConstraint(Sketcher.Constraint("Vertical", 14))
sketch5.addConstraint(Sketcher.Constraint("Horizontal", 15))
sketch5.addConstraint(Sketcher.Constraint("Vertical", 16))
sketch5.addConstraint(Sketcher.Constraint("Horizontal", 17))
sketch5.addConstraint(Sketcher.Constraint("Vertical", 18))
sketch5.addConstraint(Sketcher.Constraint("Horizontal", 19))
sketch5.addConstraint(Sketcher.Constraint("Vertical", 20))
sketch5.addConstraint(Sketcher.Constraint("Horizontal", 21))
sketch5.addConstraint(Sketcher.Constraint("Vertical", 22))
sketch5.addConstraint(Sketcher.Constraint("Horizontal", 23))
sketch5.addConstraint(Sketcher.Constraint("Vertical", 24))
sketch5.addConstraint(Sketcher.Constraint("Horizontal", 25))
sketch5.addConstraint(Sketcher.Constraint("Vertical", 26))
sketch5.addConstraint(Sketcher.Constraint("Horizontal", 27))
sketch5.addConstraint(Sketcher.Constraint("Vertical", 28))
sketch5.addConstraint(Sketcher.Constraint("Horizontal", 29))
sketch5.addConstraint(Sketcher.Constraint("Vertical", 30))
sketch5.addConstraint(Sketcher.Constraint("Horizontal", 31))
sketch5.addConstraint(Sketcher.Constraint("Vertical", 32))
sketch5.addConstraint(Sketcher.Constraint("Horizontal", 33))
sketch5.addConstraint(Sketcher.Constraint("Vertical", 34))
sketch5.addConstraint(Sketcher.Constraint("Horizontal", 35))
sketch5.addConstraint(Sketcher.Constraint("Vertical", 36))
sketch5.addConstraint(Sketcher.Constraint("Horizontal", 37))
sketch5.addConstraint(Sketcher.Constraint("Vertical", 38))
sketch5.addConstraint(Sketcher.Constraint("Horizontal", 39))
sketch5.addConstraint(Sketcher.Constraint("Symmetric", 2, 2, 20, 2, -1, 1))
sketch5.addConstraint(Sketcher.Constraint("Symmetric", 0, 2, 22, 2, -1, 1))
sketch5.addConstraint(Sketcher.Constraint("Symmetric", 6, 2, 24, 2, -1, 1))
sketch5.addConstraint(Sketcher.Constraint("Symmetric", 4, 2, 26, 2, -1, 1))
sketch5.addConstraint(Sketcher.Constraint("Symmetric", 10, 2, 28, 2, -1, 1))
sketch5.addConstraint(Sketcher.Constraint("Symmetric", 8, 2, 30, 2, -1, 1))
sketch5.addConstraint(Sketcher.Constraint("Symmetric", 14, 2, 32, 2, -1, 1))
sketch5.addConstraint(Sketcher.Constraint("Symmetric", 12, 2, 34, 2, -1, 1))
sketch5.addConstraint(Sketcher.Constraint("Symmetric", 18, 2, 36, 2, -1, 1))
sketch5.addConstraint(Sketcher.Constraint("Symmetric", 16, 2, 38, 2, -1, 1))
sketch5.addConstraint(Sketcher.Constraint("Symmetric", 17, 2, 20, 2, -2))
sketch5.addConstraint(Sketcher.Constraint("Symmetric", 19, 2, 22, 2, -2))
sketch5.addConstraint(Sketcher.Constraint("Symmetric", 13, 2, 24, 2, -2))
sketch5.addConstraint(Sketcher.Constraint("Symmetric", 15, 2, 26, 2, -2))
sketch5.addConstraint(Sketcher.Constraint("Horizontal", 9, 2, 28, 2))
sketch5.addConstraint(Sketcher.Constraint("Vertical", 3, 2, 4, 2))
sketch5.addConstraint(Sketcher.Constraint("Vertical", 7, 2, 8, 2))
sketch5.addConstraint(Sketcher.Constraint("Vertical", 6, 2, 9, 2))
sketch5.addConstraint(Sketcher.Constraint("DistanceX", 1, 1, 1, 2, Q("0.02 in")))
sketch5.addConstraint(Sketcher.Constraint("DistanceY", 0, 2, 0, 1, Q("0.07 in")))
sketch5.addConstraint(Sketcher.Constraint("DistanceY", 4, 2, 4, 1, Q("0.05 in")))
sketch5.addConstraint(Sketcher.Constraint("DistanceY", 8, 2, 8, 1, Q("0.34 in")))
sketch5.addConstraint(Sketcher.Constraint("DistanceY", 4, 2, 0, 2, Q("0.2 in")))
sketch5.addConstraint(Sketcher.Constraint("DistanceY", 8, 2, 7, 2, Q("0.5 in")))
sketch5.addConstraint(Sketcher.Constraint("DistanceX", 5, 1, 5, 2, Q("0.032 in")))
sketch5.addConstraint(Sketcher.Constraint("DistanceX", 17, 2, 20, 2, Q("2.11 in")))
sketch5.setExpression("Constraints[98]", "Params.sketch5_width")
sketch5.setExpression("Constraints[99]", "Params.sketch5_height")
sketch5.setExpression("Constraints[100]", "Params.sketch5_height2")
sketch5.setExpression("Constraints[101]", "Params.sketch5_height3")
sketch5.setExpression("Constraints[104]", "Params.sketch5_width2")
pad3 = body.newObject("PartDesign::Pad", "Pad002")
pad3.Profile = sketch5
pad3.setExpression("Length", "Params.pad3_length")
pad3.Reversed = True

# Sketch on XY plane
sketch6 = body.newObject("Sketcher::SketchObject", "Sketch005")
sketch6.AttachmentSupport = (doc.getObject("XY_Plane"), [""])
sketch6.MapMode = "FlatFace"
sketch6.AttachmentOffset = App.Placement(Vector(0, 0, 1.09 * 25.4), App.Rotation())
sketch6.addGeometry(Part.LineSegment(Vector(-27.8384, 3.1115, 0), Vector(-27.8384, -3.1115, 0)), False)
sketch6.addGeometry(Part.LineSegment(Vector(-27.8384, -3.1115, 0), Vector(-26.4922, -3.1115, 0)), False)
sketch6.addGeometry(Part.LineSegment(Vector(-26.4922, -3.1115, 0), Vector(-26.4922, 3.1115, 0)), False)
sketch6.addGeometry(Part.LineSegment(Vector(-26.4922, 3.1115, 0), Vector(-27.8384, 3.1115, 0)), False)
sketch6.addGeometry(Part.LineSegment(Vector(26.4922, 3.1115, 0), Vector(26.4922, -3.1115, 0)), False)
sketch6.addGeometry(Part.LineSegment(Vector(26.4922, -3.1115, 0), Vector(27.8384, -3.1115, 0)), False)
sketch6.addGeometry(Part.LineSegment(Vector(27.8384, -3.1115, 0), Vector(27.8384, 3.1115, 0)), False)
sketch6.addGeometry(Part.LineSegment(Vector(27.8384, 3.1115, 0), Vector(26.4922, 3.1115, 0)), False)
sketch6.addConstraint(Sketcher.Constraint("Coincident", 0, 2, 1, 1))
sketch6.addConstraint(Sketcher.Constraint("Coincident", 1, 2, 2, 1))
sketch6.addConstraint(Sketcher.Constraint("Coincident", 2, 2, 3, 1))
sketch6.addConstraint(Sketcher.Constraint("Coincident", 3, 2, 0, 1))
sketch6.addConstraint(Sketcher.Constraint("Coincident", 4, 2, 5, 1))
sketch6.addConstraint(Sketcher.Constraint("Coincident", 5, 2, 6, 1))
sketch6.addConstraint(Sketcher.Constraint("Coincident", 6, 2, 7, 1))
sketch6.addConstraint(Sketcher.Constraint("Coincident", 7, 2, 4, 1))
sketch6.addConstraint(Sketcher.Constraint("Vertical", 0))
sketch6.addConstraint(Sketcher.Constraint("Horizontal", 1))
sketch6.addConstraint(Sketcher.Constraint("Vertical", 2))
sketch6.addConstraint(Sketcher.Constraint("Horizontal", 3))
sketch6.addConstraint(Sketcher.Constraint("Vertical", 4))
sketch6.addConstraint(Sketcher.Constraint("Horizontal", 5))
sketch6.addConstraint(Sketcher.Constraint("Vertical", 6))
sketch6.addConstraint(Sketcher.Constraint("Horizontal", 7))
sketch6.addConstraint(Sketcher.Constraint("Symmetric", 2, 2, 4, 2, -1, 1))
sketch6.addConstraint(Sketcher.Constraint("Symmetric", 0, 2, 6, 2, -1, 1))
sketch6.addConstraint(Sketcher.Constraint("Horizontal", 1, 2, 4, 2))
sketch6.addConstraint(Sketcher.Constraint("DistanceX", 1, 1, 1, 2, Q("0.053 in")))
sketch6.addConstraint(Sketcher.Constraint("DistanceY", 0, 2, 0, 1, Q("0.245 in")))
sketch6.addConstraint(Sketcher.Constraint("DistanceX", 0, 2, -1, 1, Q("1.096 in")))
sketch6.setExpression("Constraints[19]", "Params.sketch6_width")
sketch6.setExpression("Constraints[20]", "Params.sketch6_height")
pocket3 = body.newObject("PartDesign::Pocket", "Pocket002")
pocket3.Profile = sketch6
pocket3.setExpression("Length", "Params.pocket3_length")

# Sketch on XY plane
sketch7 = body.newObject("Sketcher::SketchObject", "Sketch006")
sketch7.AttachmentSupport = (doc.getObject("XY_Plane"), [""])
sketch7.MapMode = "FlatFace"
sketch7.AttachmentOffset = App.Placement(Vector(0, 0, 1.09 * 25.4), App.Rotation())
sketch7.addGeometry(Part.Circle(Vector(-17.272, 0, 0), Vector(0, 0, 1), 1.651), False)
sketch7.addGeometry(Part.Circle(Vector(17.272, 0, 0), Vector(0, 0, 1), 1.651), False)
sketch7.addConstraint(Sketcher.Constraint("Equal", 0, 1))
sketch7.addConstraint(Sketcher.Constraint("Symmetric", 0, 3, 1, 3, -1, 1))
sketch7.addConstraint(Sketcher.Constraint("PointOnObject", 0, 3, -1))
sketch7.addConstraint(Sketcher.Constraint("Diameter", 0, Q("0.13 in")))
sketch7.addConstraint(Sketcher.Constraint("DistanceX", 0, 3, -1, 1, Q("0.68 in")))
sketch7.setExpression("Constraints[3]", "Params.sketch7_diameter")
pocket4 = body.newObject("PartDesign::Pocket", "Pocket003")
pocket4.Profile = sketch7
pocket4.Type = "ThroughAll"

# Sketch on XY plane
sketch8 = body.newObject("Sketcher::SketchObject", "Sketch007")
sketch8.AttachmentSupport = (doc.getObject("XY_Plane"), [""])
sketch8.MapMode = "FlatFace"
sketch8.AttachmentOffset = App.Placement(Vector(0, 0, 1.09 * 25.4), App.Rotation())
sketch8.addGeometry(Part.Circle(Vector(-17.272, 0, 0), Vector(0, 0, 1), 2.54), False)
sketch8.addGeometry(Part.Circle(Vector(17.272, 0, 0), Vector(0, 0, 1), 2.54), False)
sketch8.addConstraint(Sketcher.Constraint("Equal", 0, 1))
sketch8.addConstraint(Sketcher.Constraint("Symmetric", 0, 3, 1, 3, -1, 1))
sketch8.addConstraint(Sketcher.Constraint("PointOnObject", 0, 3, -1))
sketch8.addConstraint(Sketcher.Constraint("Diameter", 0, Q("0.2 in")))
sketch8.addConstraint(Sketcher.Constraint("DistanceX", 0, 3, -1, 1, Q("0.68 in")))
sketch8.setExpression("Constraints[3]", "Params.sketch8_diameter")
pocket5 = body.newObject("PartDesign::Pocket", "Pocket004")
pocket5.Profile = sketch8
pocket5.setExpression("Length", "Params.pocket5_length")

# Sketch on XY plane
sketch9 = body.newObject("Sketcher::SketchObject", "Sketch008")
sketch9.AttachmentSupport = (doc.getObject("XY_Plane"), [""])
sketch9.MapMode = "FlatFace"
sketch9.addGeometry(Part.LineSegment(Vector(28.963662, 13.69539, 0), Vector(28.963662, 10.64739, 0)), False)
sketch9.addGeometry(Part.LineSegment(Vector(28.963662, 10.64739, 0), Vector(27.693662, 10.64739, 0)), False)
sketch9.addGeometry(Part.LineSegment(Vector(27.693662, 10.64739, 0), Vector(27.693662, 12.42539, 0)), False)
sketch9.addGeometry(Part.LineSegment(Vector(27.693662, 12.42539, 0), Vector(24.137662, 12.42539, 0)), False)
sketch9.addGeometry(Part.LineSegment(Vector(24.137662, 12.42539, 0), Vector(24.137662, 13.69539, 0)), False)
sketch9.addGeometry(Part.LineSegment(Vector(24.137662, 13.69539, 0), Vector(28.963662, 13.69539, 0)), False)
sketch9.addConstraint(Sketcher.Constraint("Coincident", 0, 2, 1, 1))
sketch9.addConstraint(Sketcher.Constraint("Coincident", 1, 2, 2, 1))
sketch9.addConstraint(Sketcher.Constraint("Coincident", 2, 2, 3, 1))
sketch9.addConstraint(Sketcher.Constraint("Coincident", 3, 2, 4, 1))
sketch9.addConstraint(Sketcher.Constraint("Coincident", 4, 2, 5, 1))
sketch9.addConstraint(Sketcher.Constraint("Coincident", 5, 2, 0, 1))
sketch9.addConstraint(Sketcher.Constraint("Vertical", 0))
sketch9.addConstraint(Sketcher.Constraint("Horizontal", 1))
sketch9.addConstraint(Sketcher.Constraint("Vertical", 2))
sketch9.addConstraint(Sketcher.Constraint("Horizontal", 3))
sketch9.addConstraint(Sketcher.Constraint("Vertical", 4))
sketch9.addConstraint(Sketcher.Constraint("Horizontal", 5))
sketch9.addConstraint(Sketcher.Constraint("Equal", 1, 4))
sketch9.addConstraint(Sketcher.Constraint("DistanceX", 1, 2, 1, 1, Q("0.05 in")))
sketch9.addConstraint(Sketcher.Constraint("DistanceX", 3, 2, 3, 1, Q("0.14 in")))
sketch9.addConstraint(Sketcher.Constraint("DistanceY", 0, 2, 0, 1, Q("0.12 in")))
sketch9.addConstraint(Sketcher.Constraint("DistanceY", -1, 1, 0, 2, 10.64739))
sketch9.addConstraint(Sketcher.Constraint("DistanceX", -1, 1, 0, 2, 28.963662))
sketch9.setExpression("Constraints[13]", "Params.sketch9_width")
sketch9.setExpression("Constraints[14]", "Params.sketch9_width2")
sketch9.setExpression("Constraints[15]", "Params.sketch9_height")
pad4 = body.newObject("PartDesign::Pad", "Pad003")
pad4.Profile = sketch9
pad4.setExpression("Length", "Params.pad4_length")
pad4.Reversed = True
doc.recompute()

mirrored = body.newObject("PartDesign::Mirrored", "Mirrored")
mirrored.Originals = [pad4]
mirrored.MirrorPlane = (doc.getObject("XZ_Plane"), [""])
body.Tip = mirrored
doc.recompute()

mirrored2 = body.newObject("PartDesign::Mirrored", "Mirrored001")
mirrored2.Originals = [pad4]
mirrored2.MirrorPlane = (doc.getObject("YZ_Plane"), [""])
body.Tip = mirrored2

# Sketch on XY plane
sketch10 = body.newObject("Sketcher::SketchObject", "Sketch009")
sketch10.AttachmentSupport = (doc.getObject("XY_Plane"), [""])
sketch10.MapMode = "FlatFace"
sketch10.addGeometry(Part.LineSegment(Vector(-28.963662, -13.69539, 0), Vector(-28.963662, -10.64739, 0)), False)
sketch10.addGeometry(Part.LineSegment(Vector(-28.963662, -10.64739, 0), Vector(-27.693662, -10.64739, 0)), False)
sketch10.addGeometry(Part.LineSegment(Vector(-27.693662, -10.64739, 0), Vector(-27.693662, -12.42539, 0)), False)
sketch10.addGeometry(Part.LineSegment(Vector(-27.693662, -12.42539, 0), Vector(-24.137662, -12.42539, 0)), False)
sketch10.addGeometry(Part.LineSegment(Vector(-24.137662, -12.42539, 0), Vector(-24.137662, -13.69539, 0)), False)
sketch10.addGeometry(Part.LineSegment(Vector(-24.137662, -13.69539, 0), Vector(-28.963662, -13.69539, 0)), False)
sketch10.addConstraint(Sketcher.Constraint("Coincident", 0, 2, 1, 1))
sketch10.addConstraint(Sketcher.Constraint("Coincident", 1, 2, 2, 1))
sketch10.addConstraint(Sketcher.Constraint("Coincident", 2, 2, 3, 1))
sketch10.addConstraint(Sketcher.Constraint("Coincident", 3, 2, 4, 1))
sketch10.addConstraint(Sketcher.Constraint("Coincident", 4, 2, 5, 1))
sketch10.addConstraint(Sketcher.Constraint("Coincident", 5, 2, 0, 1))
sketch10.addConstraint(Sketcher.Constraint("Vertical", 0))
sketch10.addConstraint(Sketcher.Constraint("Horizontal", 1))
sketch10.addConstraint(Sketcher.Constraint("Vertical", 2))
sketch10.addConstraint(Sketcher.Constraint("Horizontal", 3))
sketch10.addConstraint(Sketcher.Constraint("Vertical", 4))
sketch10.addConstraint(Sketcher.Constraint("Horizontal", 5))
sketch10.addConstraint(Sketcher.Constraint("Equal", 1, 4))
sketch10.addConstraint(Sketcher.Constraint("DistanceX", 1, 1, 1, 2, Q("0.05 in")))
sketch10.addConstraint(Sketcher.Constraint("DistanceX", 3, 1, 3, 2, Q("0.14 in")))
sketch10.addConstraint(Sketcher.Constraint("DistanceY", 0, 1, 0, 2, Q("0.12 in")))
sketch10.addConstraint(Sketcher.Constraint("DistanceY", 0, 2, -1, 1, 10.64739))
sketch10.addConstraint(Sketcher.Constraint("DistanceX", 0, 2, -1, 1, 28.963662))
sketch10.setExpression("Constraints[13]", "Params.sketch10_width")
sketch10.setExpression("Constraints[14]", "Params.sketch10_width2")
sketch10.setExpression("Constraints[15]", "Params.sketch10_height")
pad5 = body.newObject("PartDesign::Pad", "Pad004")
pad5.Profile = sketch10
pad5.setExpression("Length", "Params.pad5_length")
pad5.Reversed = True

doc.recompute()
